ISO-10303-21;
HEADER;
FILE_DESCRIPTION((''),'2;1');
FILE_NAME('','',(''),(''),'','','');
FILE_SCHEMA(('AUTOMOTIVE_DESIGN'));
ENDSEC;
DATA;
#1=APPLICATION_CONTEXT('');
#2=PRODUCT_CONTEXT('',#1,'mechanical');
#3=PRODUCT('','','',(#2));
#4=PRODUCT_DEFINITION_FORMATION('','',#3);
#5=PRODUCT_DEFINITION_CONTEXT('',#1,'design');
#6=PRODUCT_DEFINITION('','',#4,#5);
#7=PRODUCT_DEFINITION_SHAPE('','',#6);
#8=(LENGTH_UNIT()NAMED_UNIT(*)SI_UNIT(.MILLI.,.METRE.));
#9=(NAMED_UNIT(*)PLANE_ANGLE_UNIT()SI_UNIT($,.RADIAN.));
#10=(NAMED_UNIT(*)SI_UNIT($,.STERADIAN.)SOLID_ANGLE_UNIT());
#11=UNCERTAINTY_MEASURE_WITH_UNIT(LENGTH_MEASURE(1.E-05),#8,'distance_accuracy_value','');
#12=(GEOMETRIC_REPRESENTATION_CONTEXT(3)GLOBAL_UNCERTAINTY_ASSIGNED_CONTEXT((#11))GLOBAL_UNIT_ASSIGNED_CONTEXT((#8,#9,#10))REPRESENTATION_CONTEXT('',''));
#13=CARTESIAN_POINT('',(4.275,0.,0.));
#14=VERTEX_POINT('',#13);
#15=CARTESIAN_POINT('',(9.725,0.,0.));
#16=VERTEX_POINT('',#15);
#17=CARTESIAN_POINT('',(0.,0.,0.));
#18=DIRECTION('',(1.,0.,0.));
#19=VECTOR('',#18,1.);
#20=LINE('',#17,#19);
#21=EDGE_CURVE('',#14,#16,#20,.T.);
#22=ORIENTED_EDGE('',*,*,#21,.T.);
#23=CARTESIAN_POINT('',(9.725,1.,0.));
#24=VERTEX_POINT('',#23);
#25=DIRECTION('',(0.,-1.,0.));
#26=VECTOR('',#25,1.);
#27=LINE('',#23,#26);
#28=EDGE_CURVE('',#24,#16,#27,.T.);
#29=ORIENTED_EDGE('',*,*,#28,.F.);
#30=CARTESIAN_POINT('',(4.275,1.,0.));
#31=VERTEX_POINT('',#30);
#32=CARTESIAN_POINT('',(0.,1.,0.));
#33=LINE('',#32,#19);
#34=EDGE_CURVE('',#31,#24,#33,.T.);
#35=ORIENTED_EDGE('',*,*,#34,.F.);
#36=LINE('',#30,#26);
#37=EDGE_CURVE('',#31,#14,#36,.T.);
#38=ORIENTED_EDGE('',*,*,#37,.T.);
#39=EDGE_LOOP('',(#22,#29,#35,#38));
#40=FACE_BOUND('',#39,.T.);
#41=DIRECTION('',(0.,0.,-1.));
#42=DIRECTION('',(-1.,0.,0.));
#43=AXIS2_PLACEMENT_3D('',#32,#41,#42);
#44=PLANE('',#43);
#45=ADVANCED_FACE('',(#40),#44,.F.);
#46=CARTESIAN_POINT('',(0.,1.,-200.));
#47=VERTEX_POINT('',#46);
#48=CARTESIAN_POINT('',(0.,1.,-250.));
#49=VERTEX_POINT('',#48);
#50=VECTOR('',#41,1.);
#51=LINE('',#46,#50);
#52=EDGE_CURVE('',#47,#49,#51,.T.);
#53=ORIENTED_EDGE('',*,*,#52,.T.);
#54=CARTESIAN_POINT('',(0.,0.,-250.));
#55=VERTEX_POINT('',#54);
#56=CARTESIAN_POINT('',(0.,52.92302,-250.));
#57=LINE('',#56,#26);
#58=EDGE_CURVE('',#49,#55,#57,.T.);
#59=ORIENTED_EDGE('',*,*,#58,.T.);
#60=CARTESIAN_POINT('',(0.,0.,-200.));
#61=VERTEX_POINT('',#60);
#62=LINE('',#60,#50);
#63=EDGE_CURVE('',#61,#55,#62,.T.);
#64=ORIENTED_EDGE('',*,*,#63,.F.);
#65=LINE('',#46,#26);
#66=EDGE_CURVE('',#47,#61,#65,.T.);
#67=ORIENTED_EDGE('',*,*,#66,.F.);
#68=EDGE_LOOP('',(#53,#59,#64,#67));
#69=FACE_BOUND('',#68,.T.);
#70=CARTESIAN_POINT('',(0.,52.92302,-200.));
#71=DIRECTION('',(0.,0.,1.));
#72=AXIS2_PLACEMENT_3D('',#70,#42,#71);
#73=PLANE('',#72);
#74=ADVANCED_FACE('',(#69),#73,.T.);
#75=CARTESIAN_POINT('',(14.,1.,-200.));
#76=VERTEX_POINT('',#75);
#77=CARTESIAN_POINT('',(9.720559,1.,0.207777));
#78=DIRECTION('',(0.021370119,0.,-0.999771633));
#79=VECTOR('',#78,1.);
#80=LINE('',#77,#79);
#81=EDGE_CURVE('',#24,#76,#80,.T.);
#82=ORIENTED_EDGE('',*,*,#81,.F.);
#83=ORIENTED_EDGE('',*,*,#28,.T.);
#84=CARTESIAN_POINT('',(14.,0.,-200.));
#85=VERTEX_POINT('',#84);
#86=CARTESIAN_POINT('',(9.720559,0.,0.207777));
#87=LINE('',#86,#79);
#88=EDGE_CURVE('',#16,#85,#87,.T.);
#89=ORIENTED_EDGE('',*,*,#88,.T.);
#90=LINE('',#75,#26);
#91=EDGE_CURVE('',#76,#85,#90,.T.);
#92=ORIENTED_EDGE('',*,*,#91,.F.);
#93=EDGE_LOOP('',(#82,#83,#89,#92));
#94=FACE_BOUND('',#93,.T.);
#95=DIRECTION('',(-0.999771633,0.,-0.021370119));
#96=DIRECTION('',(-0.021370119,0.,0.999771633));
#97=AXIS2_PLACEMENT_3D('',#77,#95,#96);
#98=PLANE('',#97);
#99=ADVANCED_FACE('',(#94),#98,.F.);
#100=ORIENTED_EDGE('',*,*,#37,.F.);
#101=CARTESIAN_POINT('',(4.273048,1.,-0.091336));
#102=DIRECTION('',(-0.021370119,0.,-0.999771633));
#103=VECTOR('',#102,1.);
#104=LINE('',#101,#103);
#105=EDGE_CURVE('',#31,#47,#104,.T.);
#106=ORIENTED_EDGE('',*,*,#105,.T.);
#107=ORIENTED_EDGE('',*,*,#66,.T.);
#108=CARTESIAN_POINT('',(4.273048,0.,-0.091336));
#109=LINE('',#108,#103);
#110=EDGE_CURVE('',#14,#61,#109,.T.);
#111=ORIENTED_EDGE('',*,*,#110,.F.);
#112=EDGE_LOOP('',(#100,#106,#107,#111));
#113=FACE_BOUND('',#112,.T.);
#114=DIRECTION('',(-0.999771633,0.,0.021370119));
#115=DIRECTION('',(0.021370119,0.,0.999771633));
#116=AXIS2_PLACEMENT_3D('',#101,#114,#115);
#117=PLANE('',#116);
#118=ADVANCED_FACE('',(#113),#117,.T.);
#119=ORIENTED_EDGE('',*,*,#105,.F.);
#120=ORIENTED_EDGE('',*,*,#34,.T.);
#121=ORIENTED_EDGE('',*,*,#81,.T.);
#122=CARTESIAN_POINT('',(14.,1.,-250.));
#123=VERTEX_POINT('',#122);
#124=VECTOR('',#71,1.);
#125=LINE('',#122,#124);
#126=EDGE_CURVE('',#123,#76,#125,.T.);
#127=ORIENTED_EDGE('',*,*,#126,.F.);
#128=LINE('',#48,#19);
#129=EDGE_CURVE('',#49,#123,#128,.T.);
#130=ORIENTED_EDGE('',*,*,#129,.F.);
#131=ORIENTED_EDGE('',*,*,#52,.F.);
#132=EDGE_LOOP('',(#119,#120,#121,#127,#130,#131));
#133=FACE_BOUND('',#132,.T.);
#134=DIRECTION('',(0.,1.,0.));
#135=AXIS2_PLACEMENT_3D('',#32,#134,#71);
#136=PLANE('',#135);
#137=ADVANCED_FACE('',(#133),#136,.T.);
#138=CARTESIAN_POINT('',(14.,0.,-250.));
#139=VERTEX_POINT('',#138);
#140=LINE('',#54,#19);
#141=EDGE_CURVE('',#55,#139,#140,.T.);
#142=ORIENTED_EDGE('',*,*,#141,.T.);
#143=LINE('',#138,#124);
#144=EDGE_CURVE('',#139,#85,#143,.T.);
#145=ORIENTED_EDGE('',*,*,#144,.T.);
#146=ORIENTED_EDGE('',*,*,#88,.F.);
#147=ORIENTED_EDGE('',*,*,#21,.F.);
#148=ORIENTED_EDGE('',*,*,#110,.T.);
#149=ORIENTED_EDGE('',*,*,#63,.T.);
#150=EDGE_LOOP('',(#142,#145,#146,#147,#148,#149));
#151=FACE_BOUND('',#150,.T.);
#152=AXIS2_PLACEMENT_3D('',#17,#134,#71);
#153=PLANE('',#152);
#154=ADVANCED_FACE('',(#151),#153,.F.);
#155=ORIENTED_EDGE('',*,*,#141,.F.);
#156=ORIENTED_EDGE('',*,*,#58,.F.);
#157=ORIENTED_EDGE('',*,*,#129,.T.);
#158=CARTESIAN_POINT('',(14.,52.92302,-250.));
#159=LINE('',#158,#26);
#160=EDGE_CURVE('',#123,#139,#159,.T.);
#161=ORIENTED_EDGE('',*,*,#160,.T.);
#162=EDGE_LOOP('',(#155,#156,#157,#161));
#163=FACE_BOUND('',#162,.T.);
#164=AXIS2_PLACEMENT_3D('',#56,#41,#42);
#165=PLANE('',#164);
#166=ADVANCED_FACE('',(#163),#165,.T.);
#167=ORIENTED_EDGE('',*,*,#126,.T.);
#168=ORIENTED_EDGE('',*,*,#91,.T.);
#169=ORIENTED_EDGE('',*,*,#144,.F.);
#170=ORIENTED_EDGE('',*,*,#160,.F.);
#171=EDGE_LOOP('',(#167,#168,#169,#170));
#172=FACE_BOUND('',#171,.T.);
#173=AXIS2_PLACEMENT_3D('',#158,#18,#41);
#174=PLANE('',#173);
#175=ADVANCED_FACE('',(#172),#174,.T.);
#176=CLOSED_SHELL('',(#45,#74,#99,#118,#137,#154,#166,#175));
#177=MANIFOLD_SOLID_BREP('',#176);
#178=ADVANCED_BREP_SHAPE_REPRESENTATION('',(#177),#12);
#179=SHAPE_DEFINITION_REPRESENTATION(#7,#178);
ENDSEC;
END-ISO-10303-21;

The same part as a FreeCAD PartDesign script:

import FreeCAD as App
import Part
import Sketcher
Q = App.Units.Quantity

doc = App.newDocument("Part")
body = doc.addObject("PartDesign::Body", "Body")

sketch1 = doc.addObject("Sketcher::SketchObject", "Sketch")
body.addObject(sketch1)
sketch1.AttachmentSupport = (doc.XZ_Plane, [""])
sketch1.MapMode = "FlatFace"
sketch1.addGeometry([
    Part.LineSegment(App.Vector(0, -200, 0), App.Vector(4.275, 0, 0)),
    Part.LineSegment(App.Vector(4.275, 0, 0), App.Vector(9.725, 0, 0)),
    Part.LineSegment(App.Vector(9.725, 0, 0), App.Vector(14, -200, 0)),
    Part.LineSegment(App.Vector(14, -200, 0), App.Vector(0, -200, 0)),
], False)
sketch1.addConstraint([
    Sketcher.Constraint("Coincident", 0, 2, 1, 1),
    Sketcher.Constraint("Coincident", 1, 2, 2, 1),
    Sketcher.Constraint("Coincident", 2, 2, 3, 1),
    Sketcher.Constraint("Coincident", 3, 2, 0, 1),
    Sketcher.Constraint("Horizontal", 1),
    Sketcher.Constraint("Horizontal", 3),
    Sketcher.Constraint("PointOnObject", 0, 2, -1),
    Sketcher.Constraint("PointOnObject", 3, 2, -2),
    Sketcher.Constraint("Equal", 0, 2),
    Sketcher.Constraint("DistanceX", 3, 2, 3, 1, Q("14 mm")),
    Sketcher.Constraint("DistanceY", 2, 2, -1, 1, Q("200 mm")),
    Sketcher.Constraint("DistanceX", 1, 1, 1, 2, Q("5.45 mm")),
])
pad1 = doc.addObject("PartDesign::Pad", "Pad")
body.addObject(pad1)
pad1.Profile = sketch1
pad1.Length = 1
pad1.Reversed = True

sketch2 = doc.addObject("Sketcher::SketchObject", "Sketch001")
body.addObject(sketch2)
sketch2.AttachmentSupport = (doc.XZ_Plane, [""])
sketch2.MapMode = "FlatFace"
sketch2.addGeometry([
    Part.LineSegment(App.Vector(0, -200, 0), App.Vector(0, -250, 0)),
    Part.LineSegment(App.Vector(0, -250, 0), App.Vector(14, -250, 0)),
    Part.LineSegment(App.Vector(14, -250, 0), App.Vector(14, -200, 0)),
    Part.LineSegment(App.Vector(14, -200, 0), App.Vector(0, -200, 0)),
], False)
sketch2.addConstraint([
    Sketcher.Constraint("Coincident", 0, 2, 1, 1),
    Sketcher.Constraint("Coincident", 1, 2, 2, 1),
    Sketcher.Constraint("Coincident", 2, 2, 3, 1),
    Sketcher.Constraint("Coincident", 3, 2, 0, 1),
    Sketcher.Constraint("Vertical", 0),
    Sketcher.Constraint("Horizontal", 1),
    Sketcher.Constraint("Vertical", 2),
    Sketcher.Constraint("Horizontal", 3),
    Sketcher.Constraint("PointOnObject", 0, 2, -2),
    Sketcher.Constraint("DistanceX", 1, 1, 1, 2, Q("14 mm")),
    Sketcher.Constraint("DistanceY", 0, 2, 0, 1, Q("50 mm")),
    Sketcher.Constraint("DistanceY", 0, 2, -1, 1, Q("250 mm")),
])
pad2 = doc.addObject("PartDesign::Pad", "Pad001")
body.addObject(pad2)
pad2.Profile = sketch2
pad2.Length = 1
pad2.Reversed = True

doc.recompute()
